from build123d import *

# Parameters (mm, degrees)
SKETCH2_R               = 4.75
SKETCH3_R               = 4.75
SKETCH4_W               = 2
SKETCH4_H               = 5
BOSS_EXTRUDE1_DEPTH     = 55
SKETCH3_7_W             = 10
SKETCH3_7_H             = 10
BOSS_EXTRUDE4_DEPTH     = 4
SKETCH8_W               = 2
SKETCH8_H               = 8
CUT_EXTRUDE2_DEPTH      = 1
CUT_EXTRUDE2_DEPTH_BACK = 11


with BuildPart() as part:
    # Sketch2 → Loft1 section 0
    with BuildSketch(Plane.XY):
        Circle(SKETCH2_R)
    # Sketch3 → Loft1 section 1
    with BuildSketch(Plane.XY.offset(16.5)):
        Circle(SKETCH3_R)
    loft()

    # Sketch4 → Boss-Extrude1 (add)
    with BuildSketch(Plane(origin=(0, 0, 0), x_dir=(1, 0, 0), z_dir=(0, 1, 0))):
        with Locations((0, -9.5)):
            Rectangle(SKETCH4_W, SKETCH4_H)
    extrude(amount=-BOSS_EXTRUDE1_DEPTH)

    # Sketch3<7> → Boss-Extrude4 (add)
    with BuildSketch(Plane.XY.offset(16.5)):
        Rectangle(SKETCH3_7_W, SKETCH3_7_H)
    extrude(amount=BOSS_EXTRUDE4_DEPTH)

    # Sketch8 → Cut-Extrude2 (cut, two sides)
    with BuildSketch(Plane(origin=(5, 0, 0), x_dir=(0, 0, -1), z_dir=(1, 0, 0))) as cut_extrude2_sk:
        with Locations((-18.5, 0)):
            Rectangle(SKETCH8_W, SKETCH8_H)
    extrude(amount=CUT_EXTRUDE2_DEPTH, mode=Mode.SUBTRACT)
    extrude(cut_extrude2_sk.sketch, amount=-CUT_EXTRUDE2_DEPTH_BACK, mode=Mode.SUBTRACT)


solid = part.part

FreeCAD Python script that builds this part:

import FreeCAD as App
import Part
import Sketcher
from FreeCAD import Vector
Q = App.Units.Quantity

doc = App.newDocument("Part")
body = doc.addObject("PartDesign::Body", "Body")

# Sketch on XY plane
sketch1 = body.newObject("Sketcher::SketchObject", "Sketch")
sketch1.AttachmentSupport = (doc.getObject("XY_Plane"), [""])
sketch1.MapMode = "FlatFace"
sketch1.addGeometry(Part.Circle(Vector(0, 0, 0), Vector(0, 0, 1), 4.75), False)
sketch1.addConstraint([
    Sketcher.Constraint("Coincident", 0, 3, -1, 1),
    Sketcher.Constraint("Diameter", 0, Q("9.5 mm")),
])

# Sketch on XY plane
sketch2 = body.newObject("Sketcher::SketchObject", "Sketch001")
sketch2.AttachmentSupport = (doc.getObject("XY_Plane"), [""])
sketch2.MapMode = "FlatFace"
sketch2.AttachmentOffset = App.Placement(Vector(0, 0, 16.5), App.Rotation())
sketch2.addGeometry(Part.Circle(Vector(0, 0, 0), Vector(0, 0, 1), 4.75), False)
sketch2.addConstraint([
    Sketcher.Constraint("Coincident", 0, 3, -1, 1),
    Sketcher.Constraint("Diameter", 0, Q("9.5 mm")),
])

additiveloft = body.newObject("PartDesign::AdditiveLoft", "AdditiveLoft")
additiveloft.Profile = sketch1
additiveloft.Sections = [sketch2]

# Sketch on XZ plane
sketch3 = body.newObject("Sketcher::SketchObject", "Sketch002")
sketch3.AttachmentSupport = (doc.getObject("XZ_Plane"), [""])
sketch3.MapMode = "FlatFace"
sketch3.addGeometry([
    Part.LineSegment(Vector(-1, 7, 0), Vector(-1, 12, 0)),
    Part.LineSegment(Vector(-1, 12, 0), Vector(1, 12, 0)),
    Part.LineSegment(Vector(1, 12, 0), Vector(1, 7, 0)),
    Part.LineSegment(Vector(1, 7, 0), Vector(-1, 7, 0)),
], False)
sketch3.addConstraint([
    Sketcher.Constraint("Coincident", 0, 2, 1, 1),
    Sketcher.Constraint("Coincident", 1, 2, 2, 1),
    Sketcher.Constraint("Coincident", 2, 2, 3, 1),
    Sketcher.Constraint("Coincident", 3, 2, 0, 1),
    Sketcher.Constraint("Vertical", 0),
    Sketcher.Constraint("Horizontal", 1),
    Sketcher.Constraint("Vertical", 2),
    Sketcher.Constraint("Horizontal", 3),
    Sketcher.Constraint("DistanceX", 1, 1, 1, 2, Q("2 mm")),
    Sketcher.Constraint("DistanceY", 0, 1, 0, 2, Q("5 mm")),
    Sketcher.Constraint("DistanceX", 0, 2, -1, 1, Q("1 mm")),
    Sketcher.Constraint("DistanceY", -1, 1, 0, 2, Q("12 mm")),
])
pad1 = body.newObject("PartDesign::Pad", "Pad")
pad1.Profile = sketch3
pad1.Length = 55

# Sketch on XY plane
sketch4 = body.newObject("Sketcher::SketchObject", "Sketch003")
sketch4.AttachmentSupport = (doc.getObject("XY_Plane"), [""])
sketch4.MapMode = "FlatFace"
sketch4.AttachmentOffset = App.Placement(Vector(0, 0, 16.5), App.Rotation())
sketch4.addGeometry([
    Part.LineSegment(Vector(-5, 5, 0), Vector(-5, -5, 0)),
    Part.LineSegment(Vector(-5, -5, 0), Vector(5, -5, 0)),
    Part.LineSegment(Vector(5, -5, 0), Vector(5, 5, 0)),
    Part.LineSegment(Vector(5, 5, 0), Vector(-5, 5, 0)),
], False)
sketch4.addConstraint([
    Sketcher.Constraint("Coincident", 0, 2, 1, 1),
    Sketcher.Constraint("Coincident", 1, 2, 2, 1),
    Sketcher.Constraint("Coincident", 2, 2, 3, 1),
    Sketcher.Constraint("Coincident", 3, 2, 0, 1),
    Sketcher.Constraint("Vertical", 0),
    Sketcher.Constraint("Horizontal", 1),
    Sketcher.Constraint("Vertical", 2),
    Sketcher.Constraint("Horizontal", 3),
    Sketcher.Constraint("Symmetric", 0, 2, 2, 2, -1, 1),
    Sketcher.Constraint("Equal", 3, 0),
    Sketcher.Constraint("DistanceX", 1, 1, 1, 2, Q("10 mm")),
])
pad2 = body.newObject("PartDesign::Pad", "Pad001")
pad2.Profile = sketch4
pad2.Length = 4

# Sketch on YZ plane
sketch5 = body.newObject("Sketcher::SketchObject", "Sketch004")
sketch5.AttachmentSupport = (doc.getObject("YZ_Plane"), [""])
sketch5.MapMode = "FlatFace"
sketch5.AttachmentOffset = App.Placement(Vector(0, 0, 5), App.Rotation())
sketch5.addGeometry([
    Part.LineSegment(Vector(4, 19.5, 0), Vector(-4, 19.5, 0)),
    Part.LineSegment(Vector(-4, 19.5, 0), Vector(-4, 17.5, 0)),
    Part.LineSegment(Vector(-4, 17.5, 0), Vector(4, 17.5, 0)),
    Part.LineSegment(Vector(4, 17.5, 0), Vector(4, 19.5, 0)),
], False)
sketch5.addConstraint([
    Sketcher.Constraint("Coincident", 0, 2, 1, 1),
    Sketcher.Constraint("Coincident", 1, 2, 2, 1),
    Sketcher.Constraint("Coincident", 2, 2, 3, 1),
    Sketcher.Constraint("Coincident", 3, 2, 0, 1),
    Sketcher.Constraint("Horizontal", 0),
    Sketcher.Constraint("Vertical", 1),
    Sketcher.Constraint("Horizontal", 2),
    Sketcher.Constraint("Vertical", 3),
    Sketcher.Constraint("DistanceX", 0, 2, 0, 1, Q("8 mm")),
    Sketcher.Constraint("DistanceY", 1, 2, 1, 1, Q("2 mm")),
    Sketcher.Constraint("DistanceX", 0, 2, -1, 1, Q("4 mm")),
    Sketcher.Constraint("DistanceY", -1, 1, 0, 2, Q("19.5 mm")),
])
pocket1 = body.newObject("PartDesign::Pocket", "Pocket")
pocket1.Profile = sketch5
pocket1.Type = "ThroughAll"
pocket1.Midplane = True

doc.recompute()
